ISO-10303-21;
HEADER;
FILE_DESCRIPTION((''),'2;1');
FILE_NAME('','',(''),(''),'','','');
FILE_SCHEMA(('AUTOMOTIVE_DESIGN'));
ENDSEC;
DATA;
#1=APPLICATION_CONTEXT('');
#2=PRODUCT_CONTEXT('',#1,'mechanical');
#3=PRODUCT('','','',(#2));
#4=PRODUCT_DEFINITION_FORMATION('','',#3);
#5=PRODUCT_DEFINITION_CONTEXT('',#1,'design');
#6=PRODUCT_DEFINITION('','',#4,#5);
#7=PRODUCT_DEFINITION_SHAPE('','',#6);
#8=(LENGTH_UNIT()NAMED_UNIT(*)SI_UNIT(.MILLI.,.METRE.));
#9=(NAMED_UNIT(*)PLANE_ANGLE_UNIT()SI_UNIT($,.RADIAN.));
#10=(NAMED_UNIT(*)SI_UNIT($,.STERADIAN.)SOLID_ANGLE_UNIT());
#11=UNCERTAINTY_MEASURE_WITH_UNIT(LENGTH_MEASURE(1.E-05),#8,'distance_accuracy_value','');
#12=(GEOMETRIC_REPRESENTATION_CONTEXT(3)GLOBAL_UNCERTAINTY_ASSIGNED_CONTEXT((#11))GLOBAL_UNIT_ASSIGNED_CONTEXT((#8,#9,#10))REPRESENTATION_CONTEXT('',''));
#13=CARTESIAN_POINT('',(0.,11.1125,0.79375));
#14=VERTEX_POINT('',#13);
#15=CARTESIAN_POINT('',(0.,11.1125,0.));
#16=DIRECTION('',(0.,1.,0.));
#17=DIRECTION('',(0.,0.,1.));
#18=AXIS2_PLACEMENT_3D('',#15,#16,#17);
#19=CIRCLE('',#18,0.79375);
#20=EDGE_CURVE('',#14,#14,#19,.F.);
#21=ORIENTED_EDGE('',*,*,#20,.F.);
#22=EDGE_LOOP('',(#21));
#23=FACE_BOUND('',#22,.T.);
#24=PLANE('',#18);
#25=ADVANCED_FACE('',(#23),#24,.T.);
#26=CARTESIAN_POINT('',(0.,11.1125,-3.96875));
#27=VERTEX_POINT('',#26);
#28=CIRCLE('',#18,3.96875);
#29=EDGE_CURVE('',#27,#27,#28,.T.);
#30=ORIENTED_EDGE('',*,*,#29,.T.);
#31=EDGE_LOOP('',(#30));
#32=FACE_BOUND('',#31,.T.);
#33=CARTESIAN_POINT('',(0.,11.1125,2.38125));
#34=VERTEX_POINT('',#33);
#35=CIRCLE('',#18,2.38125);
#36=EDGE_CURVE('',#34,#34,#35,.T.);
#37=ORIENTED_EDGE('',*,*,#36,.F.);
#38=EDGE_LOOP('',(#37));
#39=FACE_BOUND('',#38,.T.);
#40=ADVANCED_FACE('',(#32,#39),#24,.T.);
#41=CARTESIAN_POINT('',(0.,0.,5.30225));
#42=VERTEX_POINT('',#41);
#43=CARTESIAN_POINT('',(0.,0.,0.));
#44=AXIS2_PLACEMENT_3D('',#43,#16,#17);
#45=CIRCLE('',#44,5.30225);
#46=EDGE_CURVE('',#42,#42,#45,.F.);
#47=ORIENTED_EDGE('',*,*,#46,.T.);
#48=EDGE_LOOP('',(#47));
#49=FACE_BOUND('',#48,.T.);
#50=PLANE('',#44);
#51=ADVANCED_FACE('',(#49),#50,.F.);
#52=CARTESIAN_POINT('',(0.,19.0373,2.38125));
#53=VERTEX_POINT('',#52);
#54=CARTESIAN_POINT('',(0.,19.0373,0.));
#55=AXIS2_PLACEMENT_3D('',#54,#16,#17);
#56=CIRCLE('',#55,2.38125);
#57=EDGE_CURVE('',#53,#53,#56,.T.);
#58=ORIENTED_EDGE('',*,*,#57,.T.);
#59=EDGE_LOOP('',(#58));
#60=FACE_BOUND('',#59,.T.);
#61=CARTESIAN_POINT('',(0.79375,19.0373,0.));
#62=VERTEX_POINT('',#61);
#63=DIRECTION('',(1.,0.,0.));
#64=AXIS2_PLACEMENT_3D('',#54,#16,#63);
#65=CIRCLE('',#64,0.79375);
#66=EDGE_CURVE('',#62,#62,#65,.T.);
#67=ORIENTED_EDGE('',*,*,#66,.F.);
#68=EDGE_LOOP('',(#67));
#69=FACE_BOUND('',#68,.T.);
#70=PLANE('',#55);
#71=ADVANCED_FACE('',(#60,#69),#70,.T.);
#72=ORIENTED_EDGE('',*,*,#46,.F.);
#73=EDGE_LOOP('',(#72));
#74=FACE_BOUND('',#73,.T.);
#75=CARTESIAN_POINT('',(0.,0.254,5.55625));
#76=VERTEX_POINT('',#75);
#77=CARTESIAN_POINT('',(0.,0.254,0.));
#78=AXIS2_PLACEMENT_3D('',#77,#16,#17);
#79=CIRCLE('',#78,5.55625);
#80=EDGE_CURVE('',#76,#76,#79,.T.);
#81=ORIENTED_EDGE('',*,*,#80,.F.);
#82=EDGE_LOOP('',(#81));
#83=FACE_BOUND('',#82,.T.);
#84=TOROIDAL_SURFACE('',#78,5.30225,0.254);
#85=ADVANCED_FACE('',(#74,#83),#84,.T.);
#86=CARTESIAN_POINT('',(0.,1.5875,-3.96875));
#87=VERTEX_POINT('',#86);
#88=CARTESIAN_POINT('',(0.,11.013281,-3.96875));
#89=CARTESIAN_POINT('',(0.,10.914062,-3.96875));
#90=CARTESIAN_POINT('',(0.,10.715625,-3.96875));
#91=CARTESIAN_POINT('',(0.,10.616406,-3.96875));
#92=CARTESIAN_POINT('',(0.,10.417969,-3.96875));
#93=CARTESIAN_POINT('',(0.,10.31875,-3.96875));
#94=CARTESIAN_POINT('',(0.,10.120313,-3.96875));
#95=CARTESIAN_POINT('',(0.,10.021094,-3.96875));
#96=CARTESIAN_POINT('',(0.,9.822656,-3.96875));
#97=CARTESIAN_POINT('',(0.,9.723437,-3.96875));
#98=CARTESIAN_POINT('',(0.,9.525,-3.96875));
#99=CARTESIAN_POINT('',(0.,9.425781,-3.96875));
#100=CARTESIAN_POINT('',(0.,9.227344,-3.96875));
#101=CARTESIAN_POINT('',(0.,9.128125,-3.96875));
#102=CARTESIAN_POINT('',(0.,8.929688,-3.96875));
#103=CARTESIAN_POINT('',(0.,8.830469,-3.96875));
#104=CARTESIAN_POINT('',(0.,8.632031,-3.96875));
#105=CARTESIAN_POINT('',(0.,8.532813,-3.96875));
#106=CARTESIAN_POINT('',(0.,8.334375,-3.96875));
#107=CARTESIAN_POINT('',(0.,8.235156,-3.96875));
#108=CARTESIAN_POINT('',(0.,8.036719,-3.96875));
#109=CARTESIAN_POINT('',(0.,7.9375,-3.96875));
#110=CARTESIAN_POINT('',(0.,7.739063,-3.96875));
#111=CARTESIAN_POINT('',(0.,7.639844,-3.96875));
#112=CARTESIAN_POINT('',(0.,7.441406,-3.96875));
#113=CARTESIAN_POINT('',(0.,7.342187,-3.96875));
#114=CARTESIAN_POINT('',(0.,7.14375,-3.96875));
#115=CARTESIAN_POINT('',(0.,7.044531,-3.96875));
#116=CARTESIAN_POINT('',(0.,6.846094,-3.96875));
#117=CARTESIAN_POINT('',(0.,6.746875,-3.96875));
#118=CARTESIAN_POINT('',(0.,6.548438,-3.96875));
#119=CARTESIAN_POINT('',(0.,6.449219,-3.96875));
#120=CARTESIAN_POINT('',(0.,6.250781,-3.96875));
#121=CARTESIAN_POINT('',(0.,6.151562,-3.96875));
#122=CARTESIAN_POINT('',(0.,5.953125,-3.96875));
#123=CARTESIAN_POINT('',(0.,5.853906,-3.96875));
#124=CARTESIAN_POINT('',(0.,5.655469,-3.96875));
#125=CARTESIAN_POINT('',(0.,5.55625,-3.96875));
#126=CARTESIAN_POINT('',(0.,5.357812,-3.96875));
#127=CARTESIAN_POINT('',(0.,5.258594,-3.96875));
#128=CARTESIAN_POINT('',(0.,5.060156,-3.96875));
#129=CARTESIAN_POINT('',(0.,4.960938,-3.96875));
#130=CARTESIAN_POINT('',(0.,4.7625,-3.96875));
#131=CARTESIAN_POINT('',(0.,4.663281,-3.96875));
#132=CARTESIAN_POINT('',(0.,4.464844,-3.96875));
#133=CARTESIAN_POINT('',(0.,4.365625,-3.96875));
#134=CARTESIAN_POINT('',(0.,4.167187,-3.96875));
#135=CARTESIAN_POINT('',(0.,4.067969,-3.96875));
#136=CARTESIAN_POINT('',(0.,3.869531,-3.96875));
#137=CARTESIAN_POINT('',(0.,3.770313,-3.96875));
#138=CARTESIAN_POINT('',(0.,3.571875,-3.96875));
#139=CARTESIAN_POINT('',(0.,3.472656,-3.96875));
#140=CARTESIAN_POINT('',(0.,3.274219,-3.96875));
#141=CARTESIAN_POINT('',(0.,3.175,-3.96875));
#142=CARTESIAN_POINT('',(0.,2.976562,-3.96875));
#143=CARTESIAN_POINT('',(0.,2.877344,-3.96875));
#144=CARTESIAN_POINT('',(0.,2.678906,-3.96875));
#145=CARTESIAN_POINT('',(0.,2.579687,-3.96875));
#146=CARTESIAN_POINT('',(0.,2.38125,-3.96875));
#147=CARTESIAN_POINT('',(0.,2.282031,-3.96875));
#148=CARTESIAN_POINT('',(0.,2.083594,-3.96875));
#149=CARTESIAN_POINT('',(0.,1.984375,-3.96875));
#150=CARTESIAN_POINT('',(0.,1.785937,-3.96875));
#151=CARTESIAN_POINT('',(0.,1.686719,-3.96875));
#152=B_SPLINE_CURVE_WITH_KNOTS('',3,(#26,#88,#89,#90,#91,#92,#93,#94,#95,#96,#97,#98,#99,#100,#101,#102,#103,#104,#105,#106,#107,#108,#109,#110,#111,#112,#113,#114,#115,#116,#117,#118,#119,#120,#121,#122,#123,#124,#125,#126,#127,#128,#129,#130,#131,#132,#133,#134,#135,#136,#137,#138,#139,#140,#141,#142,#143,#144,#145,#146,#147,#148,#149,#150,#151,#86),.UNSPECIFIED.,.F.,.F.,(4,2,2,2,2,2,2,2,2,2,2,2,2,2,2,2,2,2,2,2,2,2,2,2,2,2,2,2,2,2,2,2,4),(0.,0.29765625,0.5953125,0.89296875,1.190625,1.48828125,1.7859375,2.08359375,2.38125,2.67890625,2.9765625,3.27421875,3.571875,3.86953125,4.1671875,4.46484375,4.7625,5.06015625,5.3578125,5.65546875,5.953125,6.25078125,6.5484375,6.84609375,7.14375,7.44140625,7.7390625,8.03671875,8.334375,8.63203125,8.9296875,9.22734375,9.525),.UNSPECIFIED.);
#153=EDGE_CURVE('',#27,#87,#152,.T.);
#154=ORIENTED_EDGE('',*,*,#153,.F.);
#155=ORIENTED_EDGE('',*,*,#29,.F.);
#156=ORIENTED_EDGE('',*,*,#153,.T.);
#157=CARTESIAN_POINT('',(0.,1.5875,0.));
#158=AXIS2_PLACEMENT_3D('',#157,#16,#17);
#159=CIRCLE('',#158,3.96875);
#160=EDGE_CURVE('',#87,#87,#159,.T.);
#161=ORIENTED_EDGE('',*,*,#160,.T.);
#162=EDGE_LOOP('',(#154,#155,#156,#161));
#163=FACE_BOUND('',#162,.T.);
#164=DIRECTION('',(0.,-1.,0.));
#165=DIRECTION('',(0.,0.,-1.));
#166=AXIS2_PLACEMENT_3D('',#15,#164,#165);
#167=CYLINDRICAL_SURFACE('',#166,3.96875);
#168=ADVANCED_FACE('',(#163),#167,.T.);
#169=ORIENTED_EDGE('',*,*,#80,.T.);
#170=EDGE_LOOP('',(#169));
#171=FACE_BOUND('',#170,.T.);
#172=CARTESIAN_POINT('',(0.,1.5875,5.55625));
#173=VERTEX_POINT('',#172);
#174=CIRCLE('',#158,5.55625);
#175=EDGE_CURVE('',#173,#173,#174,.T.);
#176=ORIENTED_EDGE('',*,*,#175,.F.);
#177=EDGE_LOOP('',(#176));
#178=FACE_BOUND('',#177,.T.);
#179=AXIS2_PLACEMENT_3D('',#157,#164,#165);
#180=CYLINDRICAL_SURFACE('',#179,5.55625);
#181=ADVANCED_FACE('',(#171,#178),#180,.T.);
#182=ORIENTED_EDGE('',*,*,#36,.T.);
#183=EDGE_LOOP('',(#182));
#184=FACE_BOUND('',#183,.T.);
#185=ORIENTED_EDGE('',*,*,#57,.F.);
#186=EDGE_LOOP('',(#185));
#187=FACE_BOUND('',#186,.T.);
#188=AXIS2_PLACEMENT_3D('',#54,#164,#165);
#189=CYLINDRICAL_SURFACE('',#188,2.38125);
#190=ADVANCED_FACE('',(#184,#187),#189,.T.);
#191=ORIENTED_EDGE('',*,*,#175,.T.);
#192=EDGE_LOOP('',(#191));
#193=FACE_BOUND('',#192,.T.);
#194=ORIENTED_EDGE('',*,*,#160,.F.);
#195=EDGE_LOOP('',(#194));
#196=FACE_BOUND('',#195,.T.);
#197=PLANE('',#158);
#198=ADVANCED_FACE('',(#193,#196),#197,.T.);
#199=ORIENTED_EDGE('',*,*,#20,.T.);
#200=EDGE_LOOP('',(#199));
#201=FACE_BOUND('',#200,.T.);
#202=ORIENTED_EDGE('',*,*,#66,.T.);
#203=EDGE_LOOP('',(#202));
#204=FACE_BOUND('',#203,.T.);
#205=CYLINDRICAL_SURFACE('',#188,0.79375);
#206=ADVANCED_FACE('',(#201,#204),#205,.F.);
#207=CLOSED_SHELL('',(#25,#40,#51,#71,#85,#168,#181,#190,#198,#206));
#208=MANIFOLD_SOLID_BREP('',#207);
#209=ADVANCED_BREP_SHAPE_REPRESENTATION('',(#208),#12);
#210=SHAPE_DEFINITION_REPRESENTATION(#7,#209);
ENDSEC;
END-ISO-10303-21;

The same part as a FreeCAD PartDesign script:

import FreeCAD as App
import Part
import Sketcher
from FreeCAD import Vector
Q = App.Units.Quantity


def edges_at(feature, points):
    """Names of the edges that pass closest to the given points."""
    edges = feature.Shape.Edges
    near = lambda p: min(range(len(edges)), key=lambda i: edges[i].distToShape(Part.Vertex(*p))[0])
    return sorted({f"Edge{near(p) + 1}" for p in points})

doc = App.newDocument("Part")
params = doc.addObject("Spreadsheet::Sheet", "Params")
for row, (alias, value) in enumerate([
    ("sketch1_diameter", "0.4375 in"),
    ("pad1_length", "0.0625 in"),
    ("sketch2_diameter", "0.3125 in"),
    ("pad2_length", "0.375 in"),
    ("sketch3_diameter", "0.1875 in"),
    ("sketch3_diameter2", "0.0625 in"),
    ("pad3_length", "0.312 in"),
    ("fillet_radius", "0.01 in"),
], start=1):
    params.set(f"A{row}", alias)
    params.set(f"B{row}", "=" + value)
    params.setAlias(f"B{row}", alias)

body = doc.addObject("PartDesign::Body", "Body")

sketch1 = body.newObject("Sketcher::SketchObject", "Sketch")
sketch1.AttachmentSupport = (doc.getObject("XZ_Plane"), [""])
sketch1.MapMode = "FlatFace"
sketch1.addGeometry(Part.Circle(Vector(0, 0, 0), Vector(0, 0, 1), 6), False)
sketch1.addConstraint(Sketcher.Constraint("Coincident", 0, 3, -1, 1))
sketch1.addConstraint(Sketcher.Constraint("Diameter", 0, Q("0.4375 in")))
sketch1.setExpression("Constraints[1]", "Params.sketch1_diameter")
pad1 = body.newObject("PartDesign::Pad", "Pad")
pad1.Profile = sketch1
pad1.setExpression("Length", "Params.pad1_length")
pad1.Reversed = True

sketch2 = body.newObject("Sketcher::SketchObject", "Sketch001")
sketch2.AttachmentSupport = (doc.getObject("XZ_Plane"), [""])
sketch2.MapMode = "FlatFace"
sketch2.AttachmentOffset = App.Placement(Vector(0, 0, -0.0625 * 25.4), App.Rotation())
sketch2.addGeometry(Part.Circle(Vector(0, 0, 0), Vector(0, 0, 1), 4), False)
sketch2.addConstraint(Sketcher.Constraint("Coincident", 0, 3, -1, 1))
sketch2.addConstraint(Sketcher.Constraint("Diameter", 0, Q("0.3125 in")))
sketch2.setExpression("Constraints[1]", "Params.sketch2_diameter")
pad2 = body.newObject("PartDesign::Pad", "Pad001")
pad2.Profile = sketch2
pad2.setExpression("Length", "Params.pad2_length")
pad2.Reversed = True

sketch3 = body.newObject("Sketcher::SketchObject", "Sketch002")
sketch3.AttachmentSupport = (doc.getObject("XZ_Plane"), [""])
sketch3.MapMode = "FlatFace"
sketch3.AttachmentOffset = App.Placement(Vector(0, 0, -0.4375 * 25.4), App.Rotation())
sketch3.addGeometry(Part.Circle(Vector(0, 0, 0), Vector(0, 0, 1), 2.4), False)
sketch3.addGeometry(Part.Circle(Vector(0, 0, 0), Vector(0, 0, 1), 0.8), False)
sketch3.addConstraint(Sketcher.Constraint("Coincident", 0, 3, -1, 1))
sketch3.addConstraint(Sketcher.Constraint("Coincident", 1, 3, -1, 1))
sketch3.addConstraint(Sketcher.Constraint("Diameter", 0, Q("0.1875 in")))
sketch3.addConstraint(Sketcher.Constraint("Diameter", 1, Q("0.0625 in")))
sketch3.setExpression("Constraints[2]", "Params.sketch3_diameter")
sketch3.setExpression("Constraints[3]", "Params.sketch3_diameter2")
pad3 = body.newObject("PartDesign::Pad", "Pad002")
pad3.Profile = sketch3
pad3.setExpression("Length", "Params.pad3_length")
pad3.Reversed = True
doc.recompute()

fillet = body.newObject("PartDesign::Fillet", "Fillet")
fillet.Base = (pad3, edges_at(pad3, [(0, 0, -5.556)]))
fillet.setExpression("Radius", "Params.fillet_radius")

doc.recompute()
